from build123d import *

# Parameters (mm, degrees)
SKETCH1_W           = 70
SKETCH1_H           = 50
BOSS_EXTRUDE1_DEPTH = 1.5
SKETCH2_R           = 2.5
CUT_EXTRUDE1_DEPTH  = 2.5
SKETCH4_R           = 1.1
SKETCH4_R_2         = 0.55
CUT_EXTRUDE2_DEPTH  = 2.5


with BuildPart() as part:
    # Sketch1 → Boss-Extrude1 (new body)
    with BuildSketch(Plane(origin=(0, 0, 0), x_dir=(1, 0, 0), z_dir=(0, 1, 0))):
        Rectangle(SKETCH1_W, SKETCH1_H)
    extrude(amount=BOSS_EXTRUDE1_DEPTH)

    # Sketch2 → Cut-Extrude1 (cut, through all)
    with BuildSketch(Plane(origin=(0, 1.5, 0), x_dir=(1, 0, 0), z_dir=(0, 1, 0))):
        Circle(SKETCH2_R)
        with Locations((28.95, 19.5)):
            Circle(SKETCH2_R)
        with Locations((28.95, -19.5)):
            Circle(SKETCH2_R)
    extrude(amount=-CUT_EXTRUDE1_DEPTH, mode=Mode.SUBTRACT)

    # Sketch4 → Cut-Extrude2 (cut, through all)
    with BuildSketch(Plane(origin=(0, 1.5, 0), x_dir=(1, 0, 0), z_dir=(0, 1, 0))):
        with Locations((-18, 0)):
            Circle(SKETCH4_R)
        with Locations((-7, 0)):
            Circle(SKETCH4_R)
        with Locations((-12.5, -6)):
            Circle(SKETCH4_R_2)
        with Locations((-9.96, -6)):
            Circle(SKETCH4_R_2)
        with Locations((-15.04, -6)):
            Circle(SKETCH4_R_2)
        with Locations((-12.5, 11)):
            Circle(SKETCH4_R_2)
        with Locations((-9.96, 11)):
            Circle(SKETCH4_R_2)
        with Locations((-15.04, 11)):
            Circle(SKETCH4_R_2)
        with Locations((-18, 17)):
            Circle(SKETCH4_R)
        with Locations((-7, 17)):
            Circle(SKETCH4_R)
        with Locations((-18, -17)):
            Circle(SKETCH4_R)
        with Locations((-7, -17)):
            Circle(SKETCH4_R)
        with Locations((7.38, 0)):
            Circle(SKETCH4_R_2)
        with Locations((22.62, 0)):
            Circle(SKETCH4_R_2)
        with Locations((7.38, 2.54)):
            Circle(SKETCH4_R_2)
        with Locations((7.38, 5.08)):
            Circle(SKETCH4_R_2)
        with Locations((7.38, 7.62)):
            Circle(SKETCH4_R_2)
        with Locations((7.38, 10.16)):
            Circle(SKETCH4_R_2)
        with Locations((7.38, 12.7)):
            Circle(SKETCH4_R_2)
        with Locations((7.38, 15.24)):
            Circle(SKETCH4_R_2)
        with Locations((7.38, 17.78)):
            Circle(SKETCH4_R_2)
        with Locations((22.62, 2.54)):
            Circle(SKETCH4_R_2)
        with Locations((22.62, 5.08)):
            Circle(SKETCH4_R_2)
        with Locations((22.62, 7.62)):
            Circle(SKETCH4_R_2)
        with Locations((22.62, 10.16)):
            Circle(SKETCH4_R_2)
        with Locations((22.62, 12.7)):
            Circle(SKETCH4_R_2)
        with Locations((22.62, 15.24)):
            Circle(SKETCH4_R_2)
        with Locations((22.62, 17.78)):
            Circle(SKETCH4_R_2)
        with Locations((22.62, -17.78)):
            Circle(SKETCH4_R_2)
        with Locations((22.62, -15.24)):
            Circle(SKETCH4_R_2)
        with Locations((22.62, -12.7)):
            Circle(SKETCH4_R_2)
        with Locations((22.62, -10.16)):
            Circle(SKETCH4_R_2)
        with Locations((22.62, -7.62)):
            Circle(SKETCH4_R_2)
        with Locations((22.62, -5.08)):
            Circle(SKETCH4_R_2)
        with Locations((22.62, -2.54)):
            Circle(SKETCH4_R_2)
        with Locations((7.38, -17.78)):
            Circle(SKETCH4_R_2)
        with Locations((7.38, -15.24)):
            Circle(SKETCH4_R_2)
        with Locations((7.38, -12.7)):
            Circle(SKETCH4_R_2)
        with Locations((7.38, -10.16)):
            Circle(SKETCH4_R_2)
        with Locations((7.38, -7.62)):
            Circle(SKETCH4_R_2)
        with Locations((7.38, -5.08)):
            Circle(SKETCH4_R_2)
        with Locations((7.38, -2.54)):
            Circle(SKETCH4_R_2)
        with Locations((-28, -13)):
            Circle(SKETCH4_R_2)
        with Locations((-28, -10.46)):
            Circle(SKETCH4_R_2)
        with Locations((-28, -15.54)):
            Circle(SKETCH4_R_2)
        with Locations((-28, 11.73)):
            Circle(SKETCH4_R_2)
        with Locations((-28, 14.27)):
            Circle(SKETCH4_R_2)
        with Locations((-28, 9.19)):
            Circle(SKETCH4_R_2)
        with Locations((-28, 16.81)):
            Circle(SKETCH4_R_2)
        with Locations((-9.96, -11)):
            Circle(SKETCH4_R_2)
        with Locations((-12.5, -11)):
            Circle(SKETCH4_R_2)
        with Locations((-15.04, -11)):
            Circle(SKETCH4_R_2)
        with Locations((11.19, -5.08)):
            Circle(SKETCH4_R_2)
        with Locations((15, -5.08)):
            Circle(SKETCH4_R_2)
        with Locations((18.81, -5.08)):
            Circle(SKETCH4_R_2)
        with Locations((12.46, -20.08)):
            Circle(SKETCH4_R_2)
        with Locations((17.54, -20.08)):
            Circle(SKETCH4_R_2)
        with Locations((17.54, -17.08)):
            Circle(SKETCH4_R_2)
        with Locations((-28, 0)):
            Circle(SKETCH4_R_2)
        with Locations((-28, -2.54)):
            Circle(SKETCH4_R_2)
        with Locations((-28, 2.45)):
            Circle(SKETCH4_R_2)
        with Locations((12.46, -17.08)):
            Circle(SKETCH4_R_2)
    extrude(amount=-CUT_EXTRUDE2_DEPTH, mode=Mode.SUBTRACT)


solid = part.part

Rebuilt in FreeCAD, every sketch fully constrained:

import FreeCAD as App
import Part
import Sketcher

V = App.Vector


def add_polygon(sketch, points):
    """Adds a closed chain of lines whose ends are joined by coincident constraints."""
    first, n = sketch.GeometryCount, len(points)
    for a, b in zip(points, points[1:] + points[:1]):
        sketch.addGeometry(Part.LineSegment(App.Vector(*a, 0), App.Vector(*b, 0)), False)
    for i in range(n):
        sketch.addConstraint(Sketcher.Constraint("Coincident", first + i, 2, first + (i + 1) % n, 1))

doc = App.newDocument("Part")
body = doc.addObject("PartDesign::Body", "Body")

# Sketch on XZ plane
sketch1 = doc.addObject("Sketcher::SketchObject", "Sketch")
body.addObject(sketch1)
sketch1.AttachmentSupport = (doc.XZ_Plane, [""])
sketch1.MapMode = "FlatFace"
add_polygon(sketch1, [(-35, -25), (-35, 25), (35, 25), (35, -25)])  # lines 0-3
sketch1.addConstraint([
    Sketcher.Constraint("Vertical", 0),
    Sketcher.Constraint("Horizontal", 1),
    Sketcher.Constraint("Vertical", 2),
    Sketcher.Constraint("Horizontal", 3),
    Sketcher.Constraint("Symmetric", 0, 2, 2, 2, -1, 1),
    Sketcher.Constraint("DistanceX", 1, 1, 1, 2, 70.0),
    Sketcher.Constraint("DistanceY", 0, 1, 0, 2, 50.0),
])
pad1 = doc.addObject("PartDesign::Pad", "Pad")
body.addObject(pad1)
pad1.Profile = sketch1
pad1.Length = 1.5
pad1.Reversed = True

# Sketch on XZ plane
sketch2 = doc.addObject("Sketcher::SketchObject", "Sketch001")
body.addObject(sketch2)
sketch2.AttachmentSupport = (doc.XZ_Plane, [""])
sketch2.MapMode = "FlatFace"
sketch2.AttachmentOffset = App.Placement(V(0, 0, -1.5), App.Rotation())
sketch2.addGeometry([
    Part.Circle(V(0, 0, 0), V(0, 0, 1), 2.5),
    Part.Circle(V(28.9, -19.5, 0), V(0, 0, 1), 2.5),
    Part.Circle(V(28.9, 19.5, 0), V(0, 0, 1), 2.5),
], False)
sketch2.addConstraint([
    Sketcher.Constraint("Coincident", 0, 3, -1, 1),
    Sketcher.Constraint("Equal", 0, 1),
    Sketcher.Constraint("Equal", 1, 2),
    Sketcher.Constraint("Symmetric", 1, 3, 2, 3, -1),
    Sketcher.Constraint("Diameter", 0, 5.0),
    Sketcher.Constraint("DistanceY", 1, 3, 2, 3, 39.0),
    Sketcher.Constraint("DistanceX", -1, 1, 1, 3, 28.95),
])
pocket1 = doc.addObject("PartDesign::Pocket", "Pocket")
body.addObject(pocket1)
pocket1.Profile = sketch2
pocket1.Type = "ThroughAll"
pocket1.Reversed = True

# Sketch on XZ plane
sketch3 = doc.addObject("Sketcher::SketchObject", "Sketch002")
body.addObject(sketch3)
sketch3.AttachmentSupport = (doc.XZ_Plane, [""])
sketch3.MapMode = "FlatFace"
sketch3.AttachmentOffset = App.Placement(V(0, 0, -1.5), App.Rotation())
sketch3.addGeometry([
    Part.Circle(V(-18, 0, 0), V(0, 0, 1), 1.1),  # 0
    Part.Circle(V(-7, 0, 0), V(0, 0, 1), 1.1),  # 1
    Part.Circle(V(-12.5, 6, 0), V(0, 0, 1), 0.6),  # 2
    Part.Circle(V(-10, 6, 0), V(0, 0, 1), 0.6),  # 3
    Part.Circle(V(-15, 6, 0), V(0, 0, 1), 0.6),  # 4
    Part.Circle(V(-12.5, -11, 0), V(0, 0, 1), 0.6),  # 5
    Part.Circle(V(-10, -11, 0), V(0, 0, 1), 0.6),  # 6
    Part.Circle(V(-15, -11, 0), V(0, 0, 1), 0.6),  # 7
    Part.Circle(V(-18, -17, 0), V(0, 0, 1), 1.1),  # 8
    Part.Circle(V(-7, -17, 0), V(0, 0, 1), 1.1),  # 9
    Part.Circle(V(-18, 17, 0), V(0, 0, 1), 1.1),  # 10
    Part.Circle(V(-7, 17, 0), V(0, 0, 1), 1.1),  # 11
    Part.Circle(V(7.4, 0, 0), V(0, 0, 1), 0.6),  # 12
    Part.Circle(V(22.6, 0, 0), V(0, 0, 1), 0.6),  # 13
    Part.Circle(V(7.4, -2.5, 0), V(0, 0, 1), 0.6),  # 14
    Part.Circle(V(7.4, -5.1, 0), V(0, 0, 1), 0.6),  # 15
    Part.Circle(V(7.4, -7.6, 0), V(0, 0, 1), 0.6),  # 16
    Part.Circle(V(7.4, -10.2, 0), V(0, 0, 1), 0.6),  # 17
    Part.Circle(V(7.4, -12.7, 0), V(0, 0, 1), 0.6),  # 18
    Part.Circle(V(7.4, -15.2, 0), V(0, 0, 1), 0.6),  # 19
    Part.Circle(V(7.4, -17.8, 0), V(0, 0, 1), 0.6),  # 20
    Part.Circle(V(22.6, -2.5, 0), V(0, 0, 1), 0.6),  # 21
    Part.Circle(V(22.6, -5.1, 0), V(0, 0, 1), 0.6),  # 22
    Part.Circle(V(22.6, -7.6, 0), V(0, 0, 1), 0.6),  # 23
    Part.Circle(V(22.6, -10.2, 0), V(0, 0, 1), 0.6),  # 24
    Part.Circle(V(22.6, -12.7, 0), V(0, 0, 1), 0.6),  # 25
    Part.Circle(V(22.6, -15.2, 0), V(0, 0, 1), 0.6),  # 26
    Part.Circle(V(22.6, -17.8, 0), V(0, 0, 1), 0.6),  # 27
    Part.Circle(V(22.6, 17.8, 0), V(0, 0, 1), 0.6),  # 28
    Part.Circle(V(22.6, 15.2, 0), V(0, 0, 1), 0.6),  # 29
    Part.Circle(V(22.6, 12.7, 0), V(0, 0, 1), 0.6),  # 30
    Part.Circle(V(22.6, 10.2, 0), V(0, 0, 1), 0.6),  # 31
    Part.Circle(V(22.6, 7.6, 0), V(0, 0, 1), 0.6),  # 32
    Part.Circle(V(22.6, 5.1, 0), V(0, 0, 1), 0.6),  # 33
    Part.Circle(V(22.6, 2.5, 0), V(0, 0, 1), 0.6),  # 34
    Part.Circle(V(7.4, 17.8, 0), V(0, 0, 1), 0.6),  # 35
    Part.Circle(V(7.4, 15.2, 0), V(0, 0, 1), 0.6),  # 36
    Part.Circle(V(7.4, 12.7, 0), V(0, 0, 1), 0.6),  # 37
    Part.Circle(V(7.4, 10.2, 0), V(0, 0, 1), 0.6),  # 38
    Part.Circle(V(7.4, 7.6, 0), V(0, 0, 1), 0.6),  # 39
    Part.Circle(V(7.4, 5.1, 0), V(0, 0, 1), 0.6),  # 40
    Part.Circle(V(7.4, 2.5, 0), V(0, 0, 1), 0.6),  # 41
    Part.Circle(V(-28, 13, 0), V(0, 0, 1), 0.6),  # 42
    Part.Circle(V(-28, 10.5, 0), V(0, 0, 1), 0.6),  # 43
    Part.Circle(V(-28, 15.5, 0), V(0, 0, 1), 0.6),  # 44
    Part.Circle(V(-28, -11.7, 0), V(0, 0, 1), 0.6),  # 45
    Part.Circle(V(-28, -14.3, 0), V(0, 0, 1), 0.6),  # 46
    Part.Circle(V(-28, -9.2, 0), V(0, 0, 1), 0.6),  # 47
    Part.Circle(V(-28, -16.8, 0), V(0, 0, 1), 0.6),  # 48
    Part.Circle(V(-10, 11, 0), V(0, 0, 1), 0.6),  # 49
    Part.Circle(V(-12.5, 11, 0), V(0, 0, 1), 0.6),  # 50
    Part.Circle(V(-15, 11, 0), V(0, 0, 1), 0.6),  # 51
    Part.Circle(V(11.2, 5.1, 0), V(0, 0, 1), 0.6),  # 52
    Part.Circle(V(15, 5.1, 0), V(0, 0, 1), 0.6),  # 53
    Part.Circle(V(18.8, 5.1, 0), V(0, 0, 1), 0.6),  # 54
    Part.Circle(V(12.5, 20.1, 0), V(0, 0, 1), 0.6),  # 55
    Part.Circle(V(17.5, 20.1, 0), V(0, 0, 1), 0.6),  # 56
    Part.Circle(V(17.5, 17.1, 0), V(0, 0, 1), 0.6),  # 57
    Part.Circle(V(-28, 0, 0), V(0, 0, 1), 0.6),  # 58
    Part.Circle(V(-28, 2.5, 0), V(0, 0, 1), 0.6),  # 59
    Part.Circle(V(-28, -2.5, 0), V(0, 0, 1), 0.6),  # 60
    Part.Circle(V(12.5, 17.1, 0), V(0, 0, 1), 0.6),  # 61
], False)
sketch3.addConstraint([
    Sketcher.Constraint("Equal", 0, 1),
    Sketcher.Constraint("Equal", 2, 3),
    Sketcher.Constraint("Equal", 3, 4),
    Sketcher.Constraint("Equal", 4, 5),
    Sketcher.Constraint("Equal", 5, 6),
    Sketcher.Constraint("Equal", 6, 7),
    Sketcher.Constraint("Equal", 1, 8),
    Sketcher.Constraint("Equal", 8, 9),
    Sketcher.Constraint("Equal", 9, 10),
    Sketcher.Constraint("Equal", 10, 11),
    Sketcher.Constraint("Equal", 7, 12),
    Sketcher.Constraint("Equal", 12, 13),
    Sketcher.Constraint("Equal", 13, 14),
    Sketcher.Constraint("Equal", 14, 15),
    Sketcher.Constraint("Equal", 15, 16),
    Sketcher.Constraint("Equal", 16, 17),
    Sketcher.Constraint("Equal", 17, 18),
    Sketcher.Constraint("Equal", 18, 19),
    Sketcher.Constraint("Equal", 19, 20),
    Sketcher.Constraint("Equal", 20, 21),
    Sketcher.Constraint("Equal", 21, 22),
    Sketcher.Constraint("Equal", 22, 23),
    Sketcher.Constraint("Equal", 23, 24),
    Sketcher.Constraint("Equal", 24, 25),
    Sketcher.Constraint("Equal", 25, 26),
    Sketcher.Constraint("Equal", 26, 27),
    Sketcher.Constraint("Equal", 27, 28),
    Sketcher.Constraint("Equal", 28, 29),
    Sketcher.Constraint("Equal", 29, 30),
    Sketcher.Constraint("Equal", 30, 31),
    Sketcher.Constraint("Equal", 31, 32),
    Sketcher.Constraint("Equal", 32, 33),
    Sketcher.Constraint("Equal", 33, 34),
    Sketcher.Constraint("Equal", 34, 35),
    Sketcher.Constraint("Equal", 35, 36),
    Sketcher.Constraint("Equal", 36, 37),
    Sketcher.Constraint("Equal", 37, 38),
    Sketcher.Constraint("Equal", 38, 39),
    Sketcher.Constraint("Equal", 39, 40),
    Sketcher.Constraint("Equal", 40, 41),
    Sketcher.Constraint("Equal", 41, 42),
    Sketcher.Constraint("Equal", 42, 43),
    Sketcher.Constraint("Equal", 43, 44),
    Sketcher.Constraint("Equal", 44, 45),
    Sketcher.Constraint("Equal", 45, 46),
    Sketcher.Constraint("Equal", 46, 47),
    Sketcher.Constraint("Equal", 47, 48),
    Sketcher.Constraint("Equal", 48, 49),
    Sketcher.Constraint("Equal", 49, 50),
    Sketcher.Constraint("Equal", 50, 51),
    Sketcher.Constraint("Equal", 51, 52),
    Sketcher.Constraint("Equal", 52, 53),
    Sketcher.Constraint("Equal", 53, 54),
    Sketcher.Constraint("Equal", 54, 55),
    Sketcher.Constraint("Equal", 55, 56),
    Sketcher.Constraint("Equal", 56, 57),
    Sketcher.Constraint("Equal", 57, 58),
    Sketcher.Constraint("Equal", 58, 59),
    Sketcher.Constraint("Equal", 59, 60),
    Sketcher.Constraint("Equal", 60, 61),
    Sketcher.Constraint("Symmetric", 8, 3, 10, 3, -1),
    Sketcher.Constraint("Symmetric", 9, 3, 11, 3, -1),
    Sketcher.Constraint("Symmetric", 27, 3, 28, 3, -1),
    Sketcher.Constraint("Symmetric", 26, 3, 29, 3, -1),
    Sketcher.Constraint("Symmetric", 25, 3, 30, 3, -1),
    Sketcher.Constraint("Symmetric", 24, 3, 31, 3, -1),
    Sketcher.Constraint("Symmetric", 23, 3, 32, 3, -1),
    Sketcher.Constraint("Symmetric", 22, 3, 33, 3, -1),
    Sketcher.Constraint("Symmetric", 21, 3, 34, 3, -1),
    Sketcher.Constraint("Symmetric", 20, 3, 35, 3, -1),
    Sketcher.Constraint("Symmetric", 19, 3, 36, 3, -1),
    Sketcher.Constraint("Symmetric", 18, 3, 37, 3, -1),
    Sketcher.Constraint("Symmetric", 17, 3, 38, 3, -1),
    Sketcher.Constraint("Symmetric", 16, 3, 39, 3, -1),
    Sketcher.Constraint("Symmetric", 15, 3, 40, 3, -1),
    Sketcher.Constraint("Symmetric", 14, 3, 41, 3, -1),
    Sketcher.Constraint("Symmetric", 6, 3, 49, 3, -1),
    Sketcher.Constraint("Symmetric", 5, 3, 50, 3, -1),
    Sketcher.Constraint("Symmetric", 7, 3, 51, 3, -1),
    Sketcher.Constraint("PointOnObject", 0, 3, -1),
    Sketcher.Constraint("PointOnObject", 1, 3, -1),
    Sketcher.Constraint("PointOnObject", 12, 3, -1),
    Sketcher.Constraint("PointOnObject", 13, 3, -1),
    Sketcher.Constraint("PointOnObject", 58, 3, -1),
    Sketcher.Constraint("Horizontal", 2, 3, 3, 3),
    Sketcher.Constraint("Horizontal", 3, 3, 4, 3),
    Sketcher.Constraint("Horizontal", 5, 3, 6, 3),
    Sketcher.Constraint("Horizontal", 6, 3, 7, 3),
    Sketcher.Constraint("Horizontal", 8, 3, 9, 3),
    Sketcher.Constraint("Horizontal", 14, 3, 21, 3),
    Sketcher.Constraint("Horizontal", 15, 3, 22, 3),
    Sketcher.Constraint("Horizontal", 16, 3, 23, 3),
    Sketcher.Constraint("Horizontal", 17, 3, 24, 3),
    Sketcher.Constraint("Horizontal", 18, 3, 25, 3),
    Sketcher.Constraint("Horizontal", 19, 3, 26, 3),
    Sketcher.Constraint("Horizontal", 20, 3, 27, 3),
    Sketcher.Constraint("Horizontal", 40, 3, 52, 3),
    Sketcher.Constraint("Horizontal", 52, 3, 53, 3),
    Sketcher.Constraint("Horizontal", 53, 3, 54, 3),
    Sketcher.Constraint("Horizontal", 55, 3, 56, 3),
    Sketcher.Constraint("Horizontal", 41, 3, 59, 3),
    Sketcher.Constraint("Horizontal", 57, 3, 61, 3),
    Sketcher.Constraint("Vertical", 2, 3, 5, 3),
    Sketcher.Constraint("Vertical", 3, 3, 6, 3),
    Sketcher.Constraint("Vertical", 4, 3, 7, 3),
    Sketcher.Constraint("Vertical", 0, 3, 8, 3),
    Sketcher.Constraint("Vertical", 1, 3, 9, 3),
    Sketcher.Constraint("Vertical", 12, 3, 14, 3),
    Sketcher.Constraint("Vertical", 14, 3, 15, 3),
    Sketcher.Constraint("Vertical", 15, 3, 16, 3),
    Sketcher.Constraint("Vertical", 16, 3, 17, 3),
    Sketcher.Constraint("Vertical", 17, 3, 18, 3),
    Sketcher.Constraint("Vertical", 18, 3, 19, 3),
    Sketcher.Constraint("Vertical", 19, 3, 20, 3),
    Sketcher.Constraint("Vertical", 13, 3, 21, 3),
    Sketcher.Constraint("Vertical", 21, 3, 22, 3),
    Sketcher.Constraint("Vertical", 22, 3, 23, 3),
    Sketcher.Constraint("Vertical", 23, 3, 24, 3),
    Sketcher.Constraint("Vertical", 24, 3, 25, 3),
    Sketcher.Constraint("Vertical", 25, 3, 26, 3),
    Sketcher.Constraint("Vertical", 26, 3, 27, 3),
    Sketcher.Constraint("Vertical", 42, 3, 43, 3),
    Sketcher.Constraint("Vertical", 43, 3, 44, 3),
    Sketcher.Constraint("Vertical", 44, 3, 45, 3),
    Sketcher.Constraint("Vertical", 45, 3, 46, 3),
    Sketcher.Constraint("Vertical", 46, 3, 47, 3),
    Sketcher.Constraint("Vertical", 47, 3, 48, 3),
    Sketcher.Constraint("Vertical", 56, 3, 57, 3),
    Sketcher.Constraint("Vertical", 48, 3, 58, 3),
    Sketcher.Constraint("Vertical", 58, 3, 59, 3),
    Sketcher.Constraint("Vertical", 59, 3, 60, 3),
    Sketcher.Constraint("Vertical", 55, 3, 61, 3),
    Sketcher.Constraint("Diameter", 0, 2.2),
    Sketcher.Constraint("Diameter", 2, 1.1),
    Sketcher.Constraint("DistanceX", 0, 3, -1, 1, 18.0),
    Sketcher.Constraint("DistanceX", 1, 3, -1, 1, 7.0),
    Sketcher.Constraint("DistanceY", -1, 1, 2, 3, 6.0),
    Sketcher.Constraint("DistanceY", 5, 3, -1, 1, 11.0),
    Sketcher.Constraint("DistanceY", 8, 3, -1, 1, 17.0),
    Sketcher.Constraint("DistanceX", 42, 3, -1, 1, 28.0),
    Sketcher.Constraint("DistanceY", -1, 1, 42, 3, 13.0),
    Sketcher.Constraint("DistanceX", -1, 1, 53, 3, 15.0),
    Sketcher.Constraint("DistanceX", 2, 3, -1, 1, 12.5),
    Sketcher.Constraint("DistanceY", 18, 3, -1, 1, 12.7),
    Sketcher.Constraint("DistanceX", 3, 3, -1, 1, 9.96),
    Sketcher.Constraint("DistanceX", 4, 3, -1, 1, 15.04),
    Sketcher.Constraint("DistanceX", -1, 1, 12, 3, 7.38),
    Sketcher.Constraint("DistanceX", -1, 1, 13, 3, 22.62),
    Sketcher.Constraint("DistanceY", 14, 3, -1, 1, 2.54),
    Sketcher.Constraint("DistanceY", 15, 3, -1, 1, 5.08),
    Sketcher.Constraint("DistanceY", 16, 3, -1, 1, 7.62),
    Sketcher.Constraint("DistanceY", 17, 3, -1, 1, 10.16),
    Sketcher.Constraint("DistanceY", 19, 3, -1, 1, 15.24),
    Sketcher.Constraint("DistanceY", 20, 3, -1, 1, 17.78),
    Sketcher.Constraint("DistanceY", -1, 1, 43, 3, 10.46),
    Sketcher.Constraint("DistanceY", -1, 1, 44, 3, 15.54),
    Sketcher.Constraint("DistanceY", 45, 3, -1, 1, 11.73),
    Sketcher.Constraint("DistanceY", 46, 3, -1, 1, 14.27),
    Sketcher.Constraint("DistanceY", 47, 3, -1, 1, 9.19),
    Sketcher.Constraint("DistanceY", 48, 3, -1, 1, 16.81),
    Sketcher.Constraint("DistanceX", -1, 1, 52, 3, 11.19),
    Sketcher.Constraint("DistanceX", -1, 1, 54, 3, 18.81),
    Sketcher.Constraint("DistanceX", -1, 1, 55, 3, 12.46),
    Sketcher.Constraint("DistanceY", -1, 1, 55, 3, 20.08),
    Sketcher.Constraint("DistanceX", -1, 1, 56, 3, 17.54),
    Sketcher.Constraint("DistanceY", -1, 1, 57, 3, 17.08),
    Sketcher.Constraint("DistanceY", 60, 3, -1, 1, 2.45),
])
pocket2 = doc.addObject("PartDesign::Pocket", "Pocket001")
body.addObject(pocket2)
pocket2.Profile = sketch3
pocket2.Type = "ThroughAll"
pocket2.Reversed = True

doc.recompute()
